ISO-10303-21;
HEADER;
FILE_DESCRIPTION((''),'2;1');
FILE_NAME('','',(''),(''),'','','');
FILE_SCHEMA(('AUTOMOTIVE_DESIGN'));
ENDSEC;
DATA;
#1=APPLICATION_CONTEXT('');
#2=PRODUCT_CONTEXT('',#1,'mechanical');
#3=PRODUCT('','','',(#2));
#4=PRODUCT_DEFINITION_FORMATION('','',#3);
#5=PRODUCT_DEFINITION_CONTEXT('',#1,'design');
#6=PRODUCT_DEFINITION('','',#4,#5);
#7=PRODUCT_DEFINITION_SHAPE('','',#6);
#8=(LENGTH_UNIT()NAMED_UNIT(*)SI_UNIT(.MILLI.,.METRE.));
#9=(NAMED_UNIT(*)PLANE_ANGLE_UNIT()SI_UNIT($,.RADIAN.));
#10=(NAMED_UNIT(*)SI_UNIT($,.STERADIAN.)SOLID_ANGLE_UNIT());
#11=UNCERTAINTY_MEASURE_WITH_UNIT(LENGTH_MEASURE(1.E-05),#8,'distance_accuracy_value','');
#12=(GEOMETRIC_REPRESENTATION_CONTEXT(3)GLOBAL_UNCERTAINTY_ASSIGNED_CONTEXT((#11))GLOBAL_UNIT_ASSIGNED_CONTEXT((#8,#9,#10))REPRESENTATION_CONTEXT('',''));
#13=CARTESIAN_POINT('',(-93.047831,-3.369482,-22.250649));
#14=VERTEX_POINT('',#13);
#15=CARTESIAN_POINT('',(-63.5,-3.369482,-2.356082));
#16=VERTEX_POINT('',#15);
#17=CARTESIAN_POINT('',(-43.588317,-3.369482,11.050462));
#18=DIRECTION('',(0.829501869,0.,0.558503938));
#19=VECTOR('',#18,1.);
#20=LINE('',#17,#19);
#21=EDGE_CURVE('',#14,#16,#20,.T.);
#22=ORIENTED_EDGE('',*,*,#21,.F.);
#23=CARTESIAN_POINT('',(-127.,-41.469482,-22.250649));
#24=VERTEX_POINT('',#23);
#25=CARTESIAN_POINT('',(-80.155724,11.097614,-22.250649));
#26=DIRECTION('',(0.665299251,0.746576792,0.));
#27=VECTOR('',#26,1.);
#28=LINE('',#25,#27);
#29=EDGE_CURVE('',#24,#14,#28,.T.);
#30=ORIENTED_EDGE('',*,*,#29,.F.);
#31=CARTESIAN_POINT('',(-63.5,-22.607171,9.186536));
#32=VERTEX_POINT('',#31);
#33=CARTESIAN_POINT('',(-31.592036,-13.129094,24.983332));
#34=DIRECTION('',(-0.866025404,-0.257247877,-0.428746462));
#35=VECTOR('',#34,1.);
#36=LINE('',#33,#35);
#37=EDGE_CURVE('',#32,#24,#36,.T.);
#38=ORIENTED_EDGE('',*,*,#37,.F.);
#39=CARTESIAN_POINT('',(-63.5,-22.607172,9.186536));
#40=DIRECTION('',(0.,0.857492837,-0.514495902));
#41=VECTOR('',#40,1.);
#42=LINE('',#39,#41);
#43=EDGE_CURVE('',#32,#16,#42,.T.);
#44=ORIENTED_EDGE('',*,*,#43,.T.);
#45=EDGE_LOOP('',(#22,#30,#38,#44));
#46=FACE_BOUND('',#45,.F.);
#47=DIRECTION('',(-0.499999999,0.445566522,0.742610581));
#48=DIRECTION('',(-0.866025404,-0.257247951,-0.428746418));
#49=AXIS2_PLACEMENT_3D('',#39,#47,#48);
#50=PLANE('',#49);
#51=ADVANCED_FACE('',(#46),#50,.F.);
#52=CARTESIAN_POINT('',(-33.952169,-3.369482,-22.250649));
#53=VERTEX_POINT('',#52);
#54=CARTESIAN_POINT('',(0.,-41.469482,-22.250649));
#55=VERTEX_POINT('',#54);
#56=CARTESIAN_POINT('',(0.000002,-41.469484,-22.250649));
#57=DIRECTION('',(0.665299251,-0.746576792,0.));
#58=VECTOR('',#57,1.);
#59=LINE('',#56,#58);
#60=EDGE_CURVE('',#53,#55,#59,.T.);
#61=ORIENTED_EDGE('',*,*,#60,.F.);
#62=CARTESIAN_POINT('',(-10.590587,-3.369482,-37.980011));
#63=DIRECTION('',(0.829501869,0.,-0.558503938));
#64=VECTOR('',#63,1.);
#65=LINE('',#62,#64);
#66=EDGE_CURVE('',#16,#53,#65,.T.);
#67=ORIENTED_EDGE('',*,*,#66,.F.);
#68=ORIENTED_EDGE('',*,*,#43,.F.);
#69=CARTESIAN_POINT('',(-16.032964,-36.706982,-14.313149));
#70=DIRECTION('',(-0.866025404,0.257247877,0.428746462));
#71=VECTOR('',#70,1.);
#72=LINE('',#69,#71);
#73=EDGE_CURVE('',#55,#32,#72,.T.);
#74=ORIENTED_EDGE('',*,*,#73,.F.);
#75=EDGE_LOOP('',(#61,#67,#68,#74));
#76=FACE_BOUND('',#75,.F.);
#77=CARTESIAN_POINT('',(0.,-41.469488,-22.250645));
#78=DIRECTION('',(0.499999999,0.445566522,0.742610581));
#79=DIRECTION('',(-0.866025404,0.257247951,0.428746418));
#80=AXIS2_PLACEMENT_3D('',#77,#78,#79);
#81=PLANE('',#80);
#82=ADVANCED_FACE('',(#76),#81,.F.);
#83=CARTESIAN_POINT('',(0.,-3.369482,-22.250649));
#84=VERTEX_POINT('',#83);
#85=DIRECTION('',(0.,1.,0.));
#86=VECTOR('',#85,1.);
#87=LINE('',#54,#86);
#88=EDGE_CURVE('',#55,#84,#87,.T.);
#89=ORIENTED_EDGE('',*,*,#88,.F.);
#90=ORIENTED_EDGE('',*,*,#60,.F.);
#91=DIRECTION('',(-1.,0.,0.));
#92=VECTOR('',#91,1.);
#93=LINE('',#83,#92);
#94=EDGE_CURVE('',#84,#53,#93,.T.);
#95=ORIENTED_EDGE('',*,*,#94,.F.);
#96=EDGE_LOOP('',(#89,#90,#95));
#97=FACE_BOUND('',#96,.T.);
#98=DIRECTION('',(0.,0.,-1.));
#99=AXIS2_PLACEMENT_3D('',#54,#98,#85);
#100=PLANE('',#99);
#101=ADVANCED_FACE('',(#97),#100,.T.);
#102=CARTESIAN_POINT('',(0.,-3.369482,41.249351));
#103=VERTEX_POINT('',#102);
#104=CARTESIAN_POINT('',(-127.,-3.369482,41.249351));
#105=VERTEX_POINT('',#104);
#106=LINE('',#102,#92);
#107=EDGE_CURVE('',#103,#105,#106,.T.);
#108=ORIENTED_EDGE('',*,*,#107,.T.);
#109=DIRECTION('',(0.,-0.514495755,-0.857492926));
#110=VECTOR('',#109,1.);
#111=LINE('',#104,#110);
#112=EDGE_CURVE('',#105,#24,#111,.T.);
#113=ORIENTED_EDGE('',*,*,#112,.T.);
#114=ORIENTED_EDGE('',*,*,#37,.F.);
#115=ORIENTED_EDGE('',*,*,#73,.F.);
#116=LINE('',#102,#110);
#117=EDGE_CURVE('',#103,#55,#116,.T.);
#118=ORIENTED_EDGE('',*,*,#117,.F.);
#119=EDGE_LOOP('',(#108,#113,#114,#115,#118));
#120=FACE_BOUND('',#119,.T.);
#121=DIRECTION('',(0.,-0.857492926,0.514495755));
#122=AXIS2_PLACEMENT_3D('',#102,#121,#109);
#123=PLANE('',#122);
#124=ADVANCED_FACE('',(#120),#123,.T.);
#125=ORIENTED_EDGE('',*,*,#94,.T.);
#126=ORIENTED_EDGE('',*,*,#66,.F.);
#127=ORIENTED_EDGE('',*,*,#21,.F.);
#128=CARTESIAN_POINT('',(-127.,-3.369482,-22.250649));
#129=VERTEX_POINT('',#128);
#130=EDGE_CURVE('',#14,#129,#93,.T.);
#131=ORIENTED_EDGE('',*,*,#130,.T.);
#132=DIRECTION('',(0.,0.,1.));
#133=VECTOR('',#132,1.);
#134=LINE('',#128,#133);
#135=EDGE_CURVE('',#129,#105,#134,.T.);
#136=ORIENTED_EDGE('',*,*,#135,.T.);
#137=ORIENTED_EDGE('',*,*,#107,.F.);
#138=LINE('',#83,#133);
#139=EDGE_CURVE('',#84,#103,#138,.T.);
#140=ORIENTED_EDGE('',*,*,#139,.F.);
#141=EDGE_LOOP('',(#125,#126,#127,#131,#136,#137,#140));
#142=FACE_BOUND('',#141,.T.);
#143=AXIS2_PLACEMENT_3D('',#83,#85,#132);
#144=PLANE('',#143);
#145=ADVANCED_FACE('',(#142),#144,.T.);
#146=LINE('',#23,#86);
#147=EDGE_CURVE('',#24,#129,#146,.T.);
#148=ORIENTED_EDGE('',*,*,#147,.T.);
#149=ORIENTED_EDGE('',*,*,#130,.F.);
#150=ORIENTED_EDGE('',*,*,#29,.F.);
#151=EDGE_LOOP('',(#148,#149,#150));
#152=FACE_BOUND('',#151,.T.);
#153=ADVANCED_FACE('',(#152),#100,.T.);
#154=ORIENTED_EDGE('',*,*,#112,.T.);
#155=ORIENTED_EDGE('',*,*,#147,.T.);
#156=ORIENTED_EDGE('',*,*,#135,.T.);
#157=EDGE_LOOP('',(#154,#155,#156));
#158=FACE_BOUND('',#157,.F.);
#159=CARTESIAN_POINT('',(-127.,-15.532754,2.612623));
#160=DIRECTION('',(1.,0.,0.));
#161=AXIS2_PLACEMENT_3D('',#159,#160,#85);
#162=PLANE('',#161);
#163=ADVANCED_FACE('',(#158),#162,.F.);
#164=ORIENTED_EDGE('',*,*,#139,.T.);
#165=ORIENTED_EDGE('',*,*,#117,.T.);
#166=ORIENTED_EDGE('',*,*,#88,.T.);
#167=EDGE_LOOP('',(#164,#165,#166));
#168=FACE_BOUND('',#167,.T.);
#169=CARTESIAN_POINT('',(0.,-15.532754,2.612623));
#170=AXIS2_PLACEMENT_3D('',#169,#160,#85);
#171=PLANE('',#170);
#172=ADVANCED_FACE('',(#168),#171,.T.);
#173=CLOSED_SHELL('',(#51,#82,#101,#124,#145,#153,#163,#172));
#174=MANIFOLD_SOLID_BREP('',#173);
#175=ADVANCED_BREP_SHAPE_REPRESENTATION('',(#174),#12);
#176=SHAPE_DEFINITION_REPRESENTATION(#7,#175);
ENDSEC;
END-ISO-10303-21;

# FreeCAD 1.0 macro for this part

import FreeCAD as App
import Part
import Sketcher
Q = App.Units.Quantity

doc = App.newDocument("Part")
body = doc.addObject("PartDesign::Body", "Body")

# Sketch on YZ plane
sketch1 = doc.addObject("Sketcher::SketchObject", "Sketch")
body.addObject(sketch1)
sketch1.AttachmentSupport = (doc.YZ_Plane, [""])
sketch1.MapMode = "FlatFace"
sketch1.addGeometry(Part.LineSegment(App.Vector(-3, -22, 0), App.Vector(-3, 41, 0)), False)
sketch1.addGeometry(Part.LineSegment(App.Vector(-3, 41, 0), App.Vector(-41, -22, 0)), False)
sketch1.addGeometry(Part.LineSegment(App.Vector(-41, -22, 0), App.Vector(-3, -22, 0)), False)
sketch1.addConstraint(Sketcher.Constraint("Coincident", 0, 2, 1, 1))
sketch1.addConstraint(Sketcher.Constraint("Coincident", 1, 2, 2, 1))
sketch1.addConstraint(Sketcher.Constraint("Coincident", 2, 2, 0, 1))
sketch1.addConstraint(Sketcher.Constraint("Vertical", 0))
sketch1.addConstraint(Sketcher.Constraint("Horizontal", 2))
sketch1.addConstraint(Sketcher.Constraint("DistanceX", 2, 1, 2, 2, Q("1.5 in")))
sketch1.addConstraint(Sketcher.Constraint("DistanceY", 0, 1, 0, 2, Q("2.5 in")))
sketch1.addConstraint(Sketcher.Constraint("DistanceY", -1, 1, 0, 2, 41.249351))
sketch1.addConstraint(Sketcher.Constraint("DistanceX", 0, 2, -1, 1, 3.369482))
pad1 = doc.addObject("PartDesign::Pad", "Pad")
body.addObject(pad1)
pad1.Profile = sketch1
pad1.Length = Q("5 in")
pad1.Reversed = True

# Sketch on an angled plane
sketch2 = doc.addObject("Sketcher::SketchObject", "Sketch001")
body.addObject(sketch2)
sketch2.Placement = App.Placement(App.Vector(0, -20.675804, 12.405482), App.Rotation(App.Vector(1, 0, 0), App.Vector(0, 0.514495902, 0.857492837), App.Vector(0, -0.857492837, 0.514495902), "ZXY"))
sketch2.addGeometry(Part.LineSegment(App.Vector(-127, -40, 0), App.Vector(0, -40, 0)), False)
sketch2.addGeometry(Part.LineSegment(App.Vector(0, -40, 0), App.Vector(-64, -4, 0)), False)
sketch2.addGeometry(Part.LineSegment(App.Vector(-64, -4, 0), App.Vector(-127, -40, 0)), False)
sketch2.addConstraint(Sketcher.Constraint("Coincident", 0, 2, 1, 1))
sketch2.addConstraint(Sketcher.Constraint("Coincident", 1, 2, 2, 1))
sketch2.addConstraint(Sketcher.Constraint("Coincident", 2, 2, 0, 1))
sketch2.addConstraint(Sketcher.Constraint("Horizontal", 0))
sketch2.addConstraint(Sketcher.Constraint("PointOnObject", 0, 2, -2))
sketch2.addConstraint(Sketcher.Constraint("Equal", 1, 2))
sketch2.addConstraint(Sketcher.Constraint("DistanceX", 0, 1, 0, 2, Q("5 in")))
sketch2.addConstraint(Sketcher.Constraint("Angle", 1, Q("150 deg")))
sketch2.addConstraint(Sketcher.Constraint("DistanceY", 0, 2, -1, 1, 40.415646))
pocket1 = doc.addObject("PartDesign::Pocket", "Pocket")
body.addObject(pocket1)
pocket1.Profile = sketch2
pocket1.Type = "ThroughAll"

doc.recompute()
